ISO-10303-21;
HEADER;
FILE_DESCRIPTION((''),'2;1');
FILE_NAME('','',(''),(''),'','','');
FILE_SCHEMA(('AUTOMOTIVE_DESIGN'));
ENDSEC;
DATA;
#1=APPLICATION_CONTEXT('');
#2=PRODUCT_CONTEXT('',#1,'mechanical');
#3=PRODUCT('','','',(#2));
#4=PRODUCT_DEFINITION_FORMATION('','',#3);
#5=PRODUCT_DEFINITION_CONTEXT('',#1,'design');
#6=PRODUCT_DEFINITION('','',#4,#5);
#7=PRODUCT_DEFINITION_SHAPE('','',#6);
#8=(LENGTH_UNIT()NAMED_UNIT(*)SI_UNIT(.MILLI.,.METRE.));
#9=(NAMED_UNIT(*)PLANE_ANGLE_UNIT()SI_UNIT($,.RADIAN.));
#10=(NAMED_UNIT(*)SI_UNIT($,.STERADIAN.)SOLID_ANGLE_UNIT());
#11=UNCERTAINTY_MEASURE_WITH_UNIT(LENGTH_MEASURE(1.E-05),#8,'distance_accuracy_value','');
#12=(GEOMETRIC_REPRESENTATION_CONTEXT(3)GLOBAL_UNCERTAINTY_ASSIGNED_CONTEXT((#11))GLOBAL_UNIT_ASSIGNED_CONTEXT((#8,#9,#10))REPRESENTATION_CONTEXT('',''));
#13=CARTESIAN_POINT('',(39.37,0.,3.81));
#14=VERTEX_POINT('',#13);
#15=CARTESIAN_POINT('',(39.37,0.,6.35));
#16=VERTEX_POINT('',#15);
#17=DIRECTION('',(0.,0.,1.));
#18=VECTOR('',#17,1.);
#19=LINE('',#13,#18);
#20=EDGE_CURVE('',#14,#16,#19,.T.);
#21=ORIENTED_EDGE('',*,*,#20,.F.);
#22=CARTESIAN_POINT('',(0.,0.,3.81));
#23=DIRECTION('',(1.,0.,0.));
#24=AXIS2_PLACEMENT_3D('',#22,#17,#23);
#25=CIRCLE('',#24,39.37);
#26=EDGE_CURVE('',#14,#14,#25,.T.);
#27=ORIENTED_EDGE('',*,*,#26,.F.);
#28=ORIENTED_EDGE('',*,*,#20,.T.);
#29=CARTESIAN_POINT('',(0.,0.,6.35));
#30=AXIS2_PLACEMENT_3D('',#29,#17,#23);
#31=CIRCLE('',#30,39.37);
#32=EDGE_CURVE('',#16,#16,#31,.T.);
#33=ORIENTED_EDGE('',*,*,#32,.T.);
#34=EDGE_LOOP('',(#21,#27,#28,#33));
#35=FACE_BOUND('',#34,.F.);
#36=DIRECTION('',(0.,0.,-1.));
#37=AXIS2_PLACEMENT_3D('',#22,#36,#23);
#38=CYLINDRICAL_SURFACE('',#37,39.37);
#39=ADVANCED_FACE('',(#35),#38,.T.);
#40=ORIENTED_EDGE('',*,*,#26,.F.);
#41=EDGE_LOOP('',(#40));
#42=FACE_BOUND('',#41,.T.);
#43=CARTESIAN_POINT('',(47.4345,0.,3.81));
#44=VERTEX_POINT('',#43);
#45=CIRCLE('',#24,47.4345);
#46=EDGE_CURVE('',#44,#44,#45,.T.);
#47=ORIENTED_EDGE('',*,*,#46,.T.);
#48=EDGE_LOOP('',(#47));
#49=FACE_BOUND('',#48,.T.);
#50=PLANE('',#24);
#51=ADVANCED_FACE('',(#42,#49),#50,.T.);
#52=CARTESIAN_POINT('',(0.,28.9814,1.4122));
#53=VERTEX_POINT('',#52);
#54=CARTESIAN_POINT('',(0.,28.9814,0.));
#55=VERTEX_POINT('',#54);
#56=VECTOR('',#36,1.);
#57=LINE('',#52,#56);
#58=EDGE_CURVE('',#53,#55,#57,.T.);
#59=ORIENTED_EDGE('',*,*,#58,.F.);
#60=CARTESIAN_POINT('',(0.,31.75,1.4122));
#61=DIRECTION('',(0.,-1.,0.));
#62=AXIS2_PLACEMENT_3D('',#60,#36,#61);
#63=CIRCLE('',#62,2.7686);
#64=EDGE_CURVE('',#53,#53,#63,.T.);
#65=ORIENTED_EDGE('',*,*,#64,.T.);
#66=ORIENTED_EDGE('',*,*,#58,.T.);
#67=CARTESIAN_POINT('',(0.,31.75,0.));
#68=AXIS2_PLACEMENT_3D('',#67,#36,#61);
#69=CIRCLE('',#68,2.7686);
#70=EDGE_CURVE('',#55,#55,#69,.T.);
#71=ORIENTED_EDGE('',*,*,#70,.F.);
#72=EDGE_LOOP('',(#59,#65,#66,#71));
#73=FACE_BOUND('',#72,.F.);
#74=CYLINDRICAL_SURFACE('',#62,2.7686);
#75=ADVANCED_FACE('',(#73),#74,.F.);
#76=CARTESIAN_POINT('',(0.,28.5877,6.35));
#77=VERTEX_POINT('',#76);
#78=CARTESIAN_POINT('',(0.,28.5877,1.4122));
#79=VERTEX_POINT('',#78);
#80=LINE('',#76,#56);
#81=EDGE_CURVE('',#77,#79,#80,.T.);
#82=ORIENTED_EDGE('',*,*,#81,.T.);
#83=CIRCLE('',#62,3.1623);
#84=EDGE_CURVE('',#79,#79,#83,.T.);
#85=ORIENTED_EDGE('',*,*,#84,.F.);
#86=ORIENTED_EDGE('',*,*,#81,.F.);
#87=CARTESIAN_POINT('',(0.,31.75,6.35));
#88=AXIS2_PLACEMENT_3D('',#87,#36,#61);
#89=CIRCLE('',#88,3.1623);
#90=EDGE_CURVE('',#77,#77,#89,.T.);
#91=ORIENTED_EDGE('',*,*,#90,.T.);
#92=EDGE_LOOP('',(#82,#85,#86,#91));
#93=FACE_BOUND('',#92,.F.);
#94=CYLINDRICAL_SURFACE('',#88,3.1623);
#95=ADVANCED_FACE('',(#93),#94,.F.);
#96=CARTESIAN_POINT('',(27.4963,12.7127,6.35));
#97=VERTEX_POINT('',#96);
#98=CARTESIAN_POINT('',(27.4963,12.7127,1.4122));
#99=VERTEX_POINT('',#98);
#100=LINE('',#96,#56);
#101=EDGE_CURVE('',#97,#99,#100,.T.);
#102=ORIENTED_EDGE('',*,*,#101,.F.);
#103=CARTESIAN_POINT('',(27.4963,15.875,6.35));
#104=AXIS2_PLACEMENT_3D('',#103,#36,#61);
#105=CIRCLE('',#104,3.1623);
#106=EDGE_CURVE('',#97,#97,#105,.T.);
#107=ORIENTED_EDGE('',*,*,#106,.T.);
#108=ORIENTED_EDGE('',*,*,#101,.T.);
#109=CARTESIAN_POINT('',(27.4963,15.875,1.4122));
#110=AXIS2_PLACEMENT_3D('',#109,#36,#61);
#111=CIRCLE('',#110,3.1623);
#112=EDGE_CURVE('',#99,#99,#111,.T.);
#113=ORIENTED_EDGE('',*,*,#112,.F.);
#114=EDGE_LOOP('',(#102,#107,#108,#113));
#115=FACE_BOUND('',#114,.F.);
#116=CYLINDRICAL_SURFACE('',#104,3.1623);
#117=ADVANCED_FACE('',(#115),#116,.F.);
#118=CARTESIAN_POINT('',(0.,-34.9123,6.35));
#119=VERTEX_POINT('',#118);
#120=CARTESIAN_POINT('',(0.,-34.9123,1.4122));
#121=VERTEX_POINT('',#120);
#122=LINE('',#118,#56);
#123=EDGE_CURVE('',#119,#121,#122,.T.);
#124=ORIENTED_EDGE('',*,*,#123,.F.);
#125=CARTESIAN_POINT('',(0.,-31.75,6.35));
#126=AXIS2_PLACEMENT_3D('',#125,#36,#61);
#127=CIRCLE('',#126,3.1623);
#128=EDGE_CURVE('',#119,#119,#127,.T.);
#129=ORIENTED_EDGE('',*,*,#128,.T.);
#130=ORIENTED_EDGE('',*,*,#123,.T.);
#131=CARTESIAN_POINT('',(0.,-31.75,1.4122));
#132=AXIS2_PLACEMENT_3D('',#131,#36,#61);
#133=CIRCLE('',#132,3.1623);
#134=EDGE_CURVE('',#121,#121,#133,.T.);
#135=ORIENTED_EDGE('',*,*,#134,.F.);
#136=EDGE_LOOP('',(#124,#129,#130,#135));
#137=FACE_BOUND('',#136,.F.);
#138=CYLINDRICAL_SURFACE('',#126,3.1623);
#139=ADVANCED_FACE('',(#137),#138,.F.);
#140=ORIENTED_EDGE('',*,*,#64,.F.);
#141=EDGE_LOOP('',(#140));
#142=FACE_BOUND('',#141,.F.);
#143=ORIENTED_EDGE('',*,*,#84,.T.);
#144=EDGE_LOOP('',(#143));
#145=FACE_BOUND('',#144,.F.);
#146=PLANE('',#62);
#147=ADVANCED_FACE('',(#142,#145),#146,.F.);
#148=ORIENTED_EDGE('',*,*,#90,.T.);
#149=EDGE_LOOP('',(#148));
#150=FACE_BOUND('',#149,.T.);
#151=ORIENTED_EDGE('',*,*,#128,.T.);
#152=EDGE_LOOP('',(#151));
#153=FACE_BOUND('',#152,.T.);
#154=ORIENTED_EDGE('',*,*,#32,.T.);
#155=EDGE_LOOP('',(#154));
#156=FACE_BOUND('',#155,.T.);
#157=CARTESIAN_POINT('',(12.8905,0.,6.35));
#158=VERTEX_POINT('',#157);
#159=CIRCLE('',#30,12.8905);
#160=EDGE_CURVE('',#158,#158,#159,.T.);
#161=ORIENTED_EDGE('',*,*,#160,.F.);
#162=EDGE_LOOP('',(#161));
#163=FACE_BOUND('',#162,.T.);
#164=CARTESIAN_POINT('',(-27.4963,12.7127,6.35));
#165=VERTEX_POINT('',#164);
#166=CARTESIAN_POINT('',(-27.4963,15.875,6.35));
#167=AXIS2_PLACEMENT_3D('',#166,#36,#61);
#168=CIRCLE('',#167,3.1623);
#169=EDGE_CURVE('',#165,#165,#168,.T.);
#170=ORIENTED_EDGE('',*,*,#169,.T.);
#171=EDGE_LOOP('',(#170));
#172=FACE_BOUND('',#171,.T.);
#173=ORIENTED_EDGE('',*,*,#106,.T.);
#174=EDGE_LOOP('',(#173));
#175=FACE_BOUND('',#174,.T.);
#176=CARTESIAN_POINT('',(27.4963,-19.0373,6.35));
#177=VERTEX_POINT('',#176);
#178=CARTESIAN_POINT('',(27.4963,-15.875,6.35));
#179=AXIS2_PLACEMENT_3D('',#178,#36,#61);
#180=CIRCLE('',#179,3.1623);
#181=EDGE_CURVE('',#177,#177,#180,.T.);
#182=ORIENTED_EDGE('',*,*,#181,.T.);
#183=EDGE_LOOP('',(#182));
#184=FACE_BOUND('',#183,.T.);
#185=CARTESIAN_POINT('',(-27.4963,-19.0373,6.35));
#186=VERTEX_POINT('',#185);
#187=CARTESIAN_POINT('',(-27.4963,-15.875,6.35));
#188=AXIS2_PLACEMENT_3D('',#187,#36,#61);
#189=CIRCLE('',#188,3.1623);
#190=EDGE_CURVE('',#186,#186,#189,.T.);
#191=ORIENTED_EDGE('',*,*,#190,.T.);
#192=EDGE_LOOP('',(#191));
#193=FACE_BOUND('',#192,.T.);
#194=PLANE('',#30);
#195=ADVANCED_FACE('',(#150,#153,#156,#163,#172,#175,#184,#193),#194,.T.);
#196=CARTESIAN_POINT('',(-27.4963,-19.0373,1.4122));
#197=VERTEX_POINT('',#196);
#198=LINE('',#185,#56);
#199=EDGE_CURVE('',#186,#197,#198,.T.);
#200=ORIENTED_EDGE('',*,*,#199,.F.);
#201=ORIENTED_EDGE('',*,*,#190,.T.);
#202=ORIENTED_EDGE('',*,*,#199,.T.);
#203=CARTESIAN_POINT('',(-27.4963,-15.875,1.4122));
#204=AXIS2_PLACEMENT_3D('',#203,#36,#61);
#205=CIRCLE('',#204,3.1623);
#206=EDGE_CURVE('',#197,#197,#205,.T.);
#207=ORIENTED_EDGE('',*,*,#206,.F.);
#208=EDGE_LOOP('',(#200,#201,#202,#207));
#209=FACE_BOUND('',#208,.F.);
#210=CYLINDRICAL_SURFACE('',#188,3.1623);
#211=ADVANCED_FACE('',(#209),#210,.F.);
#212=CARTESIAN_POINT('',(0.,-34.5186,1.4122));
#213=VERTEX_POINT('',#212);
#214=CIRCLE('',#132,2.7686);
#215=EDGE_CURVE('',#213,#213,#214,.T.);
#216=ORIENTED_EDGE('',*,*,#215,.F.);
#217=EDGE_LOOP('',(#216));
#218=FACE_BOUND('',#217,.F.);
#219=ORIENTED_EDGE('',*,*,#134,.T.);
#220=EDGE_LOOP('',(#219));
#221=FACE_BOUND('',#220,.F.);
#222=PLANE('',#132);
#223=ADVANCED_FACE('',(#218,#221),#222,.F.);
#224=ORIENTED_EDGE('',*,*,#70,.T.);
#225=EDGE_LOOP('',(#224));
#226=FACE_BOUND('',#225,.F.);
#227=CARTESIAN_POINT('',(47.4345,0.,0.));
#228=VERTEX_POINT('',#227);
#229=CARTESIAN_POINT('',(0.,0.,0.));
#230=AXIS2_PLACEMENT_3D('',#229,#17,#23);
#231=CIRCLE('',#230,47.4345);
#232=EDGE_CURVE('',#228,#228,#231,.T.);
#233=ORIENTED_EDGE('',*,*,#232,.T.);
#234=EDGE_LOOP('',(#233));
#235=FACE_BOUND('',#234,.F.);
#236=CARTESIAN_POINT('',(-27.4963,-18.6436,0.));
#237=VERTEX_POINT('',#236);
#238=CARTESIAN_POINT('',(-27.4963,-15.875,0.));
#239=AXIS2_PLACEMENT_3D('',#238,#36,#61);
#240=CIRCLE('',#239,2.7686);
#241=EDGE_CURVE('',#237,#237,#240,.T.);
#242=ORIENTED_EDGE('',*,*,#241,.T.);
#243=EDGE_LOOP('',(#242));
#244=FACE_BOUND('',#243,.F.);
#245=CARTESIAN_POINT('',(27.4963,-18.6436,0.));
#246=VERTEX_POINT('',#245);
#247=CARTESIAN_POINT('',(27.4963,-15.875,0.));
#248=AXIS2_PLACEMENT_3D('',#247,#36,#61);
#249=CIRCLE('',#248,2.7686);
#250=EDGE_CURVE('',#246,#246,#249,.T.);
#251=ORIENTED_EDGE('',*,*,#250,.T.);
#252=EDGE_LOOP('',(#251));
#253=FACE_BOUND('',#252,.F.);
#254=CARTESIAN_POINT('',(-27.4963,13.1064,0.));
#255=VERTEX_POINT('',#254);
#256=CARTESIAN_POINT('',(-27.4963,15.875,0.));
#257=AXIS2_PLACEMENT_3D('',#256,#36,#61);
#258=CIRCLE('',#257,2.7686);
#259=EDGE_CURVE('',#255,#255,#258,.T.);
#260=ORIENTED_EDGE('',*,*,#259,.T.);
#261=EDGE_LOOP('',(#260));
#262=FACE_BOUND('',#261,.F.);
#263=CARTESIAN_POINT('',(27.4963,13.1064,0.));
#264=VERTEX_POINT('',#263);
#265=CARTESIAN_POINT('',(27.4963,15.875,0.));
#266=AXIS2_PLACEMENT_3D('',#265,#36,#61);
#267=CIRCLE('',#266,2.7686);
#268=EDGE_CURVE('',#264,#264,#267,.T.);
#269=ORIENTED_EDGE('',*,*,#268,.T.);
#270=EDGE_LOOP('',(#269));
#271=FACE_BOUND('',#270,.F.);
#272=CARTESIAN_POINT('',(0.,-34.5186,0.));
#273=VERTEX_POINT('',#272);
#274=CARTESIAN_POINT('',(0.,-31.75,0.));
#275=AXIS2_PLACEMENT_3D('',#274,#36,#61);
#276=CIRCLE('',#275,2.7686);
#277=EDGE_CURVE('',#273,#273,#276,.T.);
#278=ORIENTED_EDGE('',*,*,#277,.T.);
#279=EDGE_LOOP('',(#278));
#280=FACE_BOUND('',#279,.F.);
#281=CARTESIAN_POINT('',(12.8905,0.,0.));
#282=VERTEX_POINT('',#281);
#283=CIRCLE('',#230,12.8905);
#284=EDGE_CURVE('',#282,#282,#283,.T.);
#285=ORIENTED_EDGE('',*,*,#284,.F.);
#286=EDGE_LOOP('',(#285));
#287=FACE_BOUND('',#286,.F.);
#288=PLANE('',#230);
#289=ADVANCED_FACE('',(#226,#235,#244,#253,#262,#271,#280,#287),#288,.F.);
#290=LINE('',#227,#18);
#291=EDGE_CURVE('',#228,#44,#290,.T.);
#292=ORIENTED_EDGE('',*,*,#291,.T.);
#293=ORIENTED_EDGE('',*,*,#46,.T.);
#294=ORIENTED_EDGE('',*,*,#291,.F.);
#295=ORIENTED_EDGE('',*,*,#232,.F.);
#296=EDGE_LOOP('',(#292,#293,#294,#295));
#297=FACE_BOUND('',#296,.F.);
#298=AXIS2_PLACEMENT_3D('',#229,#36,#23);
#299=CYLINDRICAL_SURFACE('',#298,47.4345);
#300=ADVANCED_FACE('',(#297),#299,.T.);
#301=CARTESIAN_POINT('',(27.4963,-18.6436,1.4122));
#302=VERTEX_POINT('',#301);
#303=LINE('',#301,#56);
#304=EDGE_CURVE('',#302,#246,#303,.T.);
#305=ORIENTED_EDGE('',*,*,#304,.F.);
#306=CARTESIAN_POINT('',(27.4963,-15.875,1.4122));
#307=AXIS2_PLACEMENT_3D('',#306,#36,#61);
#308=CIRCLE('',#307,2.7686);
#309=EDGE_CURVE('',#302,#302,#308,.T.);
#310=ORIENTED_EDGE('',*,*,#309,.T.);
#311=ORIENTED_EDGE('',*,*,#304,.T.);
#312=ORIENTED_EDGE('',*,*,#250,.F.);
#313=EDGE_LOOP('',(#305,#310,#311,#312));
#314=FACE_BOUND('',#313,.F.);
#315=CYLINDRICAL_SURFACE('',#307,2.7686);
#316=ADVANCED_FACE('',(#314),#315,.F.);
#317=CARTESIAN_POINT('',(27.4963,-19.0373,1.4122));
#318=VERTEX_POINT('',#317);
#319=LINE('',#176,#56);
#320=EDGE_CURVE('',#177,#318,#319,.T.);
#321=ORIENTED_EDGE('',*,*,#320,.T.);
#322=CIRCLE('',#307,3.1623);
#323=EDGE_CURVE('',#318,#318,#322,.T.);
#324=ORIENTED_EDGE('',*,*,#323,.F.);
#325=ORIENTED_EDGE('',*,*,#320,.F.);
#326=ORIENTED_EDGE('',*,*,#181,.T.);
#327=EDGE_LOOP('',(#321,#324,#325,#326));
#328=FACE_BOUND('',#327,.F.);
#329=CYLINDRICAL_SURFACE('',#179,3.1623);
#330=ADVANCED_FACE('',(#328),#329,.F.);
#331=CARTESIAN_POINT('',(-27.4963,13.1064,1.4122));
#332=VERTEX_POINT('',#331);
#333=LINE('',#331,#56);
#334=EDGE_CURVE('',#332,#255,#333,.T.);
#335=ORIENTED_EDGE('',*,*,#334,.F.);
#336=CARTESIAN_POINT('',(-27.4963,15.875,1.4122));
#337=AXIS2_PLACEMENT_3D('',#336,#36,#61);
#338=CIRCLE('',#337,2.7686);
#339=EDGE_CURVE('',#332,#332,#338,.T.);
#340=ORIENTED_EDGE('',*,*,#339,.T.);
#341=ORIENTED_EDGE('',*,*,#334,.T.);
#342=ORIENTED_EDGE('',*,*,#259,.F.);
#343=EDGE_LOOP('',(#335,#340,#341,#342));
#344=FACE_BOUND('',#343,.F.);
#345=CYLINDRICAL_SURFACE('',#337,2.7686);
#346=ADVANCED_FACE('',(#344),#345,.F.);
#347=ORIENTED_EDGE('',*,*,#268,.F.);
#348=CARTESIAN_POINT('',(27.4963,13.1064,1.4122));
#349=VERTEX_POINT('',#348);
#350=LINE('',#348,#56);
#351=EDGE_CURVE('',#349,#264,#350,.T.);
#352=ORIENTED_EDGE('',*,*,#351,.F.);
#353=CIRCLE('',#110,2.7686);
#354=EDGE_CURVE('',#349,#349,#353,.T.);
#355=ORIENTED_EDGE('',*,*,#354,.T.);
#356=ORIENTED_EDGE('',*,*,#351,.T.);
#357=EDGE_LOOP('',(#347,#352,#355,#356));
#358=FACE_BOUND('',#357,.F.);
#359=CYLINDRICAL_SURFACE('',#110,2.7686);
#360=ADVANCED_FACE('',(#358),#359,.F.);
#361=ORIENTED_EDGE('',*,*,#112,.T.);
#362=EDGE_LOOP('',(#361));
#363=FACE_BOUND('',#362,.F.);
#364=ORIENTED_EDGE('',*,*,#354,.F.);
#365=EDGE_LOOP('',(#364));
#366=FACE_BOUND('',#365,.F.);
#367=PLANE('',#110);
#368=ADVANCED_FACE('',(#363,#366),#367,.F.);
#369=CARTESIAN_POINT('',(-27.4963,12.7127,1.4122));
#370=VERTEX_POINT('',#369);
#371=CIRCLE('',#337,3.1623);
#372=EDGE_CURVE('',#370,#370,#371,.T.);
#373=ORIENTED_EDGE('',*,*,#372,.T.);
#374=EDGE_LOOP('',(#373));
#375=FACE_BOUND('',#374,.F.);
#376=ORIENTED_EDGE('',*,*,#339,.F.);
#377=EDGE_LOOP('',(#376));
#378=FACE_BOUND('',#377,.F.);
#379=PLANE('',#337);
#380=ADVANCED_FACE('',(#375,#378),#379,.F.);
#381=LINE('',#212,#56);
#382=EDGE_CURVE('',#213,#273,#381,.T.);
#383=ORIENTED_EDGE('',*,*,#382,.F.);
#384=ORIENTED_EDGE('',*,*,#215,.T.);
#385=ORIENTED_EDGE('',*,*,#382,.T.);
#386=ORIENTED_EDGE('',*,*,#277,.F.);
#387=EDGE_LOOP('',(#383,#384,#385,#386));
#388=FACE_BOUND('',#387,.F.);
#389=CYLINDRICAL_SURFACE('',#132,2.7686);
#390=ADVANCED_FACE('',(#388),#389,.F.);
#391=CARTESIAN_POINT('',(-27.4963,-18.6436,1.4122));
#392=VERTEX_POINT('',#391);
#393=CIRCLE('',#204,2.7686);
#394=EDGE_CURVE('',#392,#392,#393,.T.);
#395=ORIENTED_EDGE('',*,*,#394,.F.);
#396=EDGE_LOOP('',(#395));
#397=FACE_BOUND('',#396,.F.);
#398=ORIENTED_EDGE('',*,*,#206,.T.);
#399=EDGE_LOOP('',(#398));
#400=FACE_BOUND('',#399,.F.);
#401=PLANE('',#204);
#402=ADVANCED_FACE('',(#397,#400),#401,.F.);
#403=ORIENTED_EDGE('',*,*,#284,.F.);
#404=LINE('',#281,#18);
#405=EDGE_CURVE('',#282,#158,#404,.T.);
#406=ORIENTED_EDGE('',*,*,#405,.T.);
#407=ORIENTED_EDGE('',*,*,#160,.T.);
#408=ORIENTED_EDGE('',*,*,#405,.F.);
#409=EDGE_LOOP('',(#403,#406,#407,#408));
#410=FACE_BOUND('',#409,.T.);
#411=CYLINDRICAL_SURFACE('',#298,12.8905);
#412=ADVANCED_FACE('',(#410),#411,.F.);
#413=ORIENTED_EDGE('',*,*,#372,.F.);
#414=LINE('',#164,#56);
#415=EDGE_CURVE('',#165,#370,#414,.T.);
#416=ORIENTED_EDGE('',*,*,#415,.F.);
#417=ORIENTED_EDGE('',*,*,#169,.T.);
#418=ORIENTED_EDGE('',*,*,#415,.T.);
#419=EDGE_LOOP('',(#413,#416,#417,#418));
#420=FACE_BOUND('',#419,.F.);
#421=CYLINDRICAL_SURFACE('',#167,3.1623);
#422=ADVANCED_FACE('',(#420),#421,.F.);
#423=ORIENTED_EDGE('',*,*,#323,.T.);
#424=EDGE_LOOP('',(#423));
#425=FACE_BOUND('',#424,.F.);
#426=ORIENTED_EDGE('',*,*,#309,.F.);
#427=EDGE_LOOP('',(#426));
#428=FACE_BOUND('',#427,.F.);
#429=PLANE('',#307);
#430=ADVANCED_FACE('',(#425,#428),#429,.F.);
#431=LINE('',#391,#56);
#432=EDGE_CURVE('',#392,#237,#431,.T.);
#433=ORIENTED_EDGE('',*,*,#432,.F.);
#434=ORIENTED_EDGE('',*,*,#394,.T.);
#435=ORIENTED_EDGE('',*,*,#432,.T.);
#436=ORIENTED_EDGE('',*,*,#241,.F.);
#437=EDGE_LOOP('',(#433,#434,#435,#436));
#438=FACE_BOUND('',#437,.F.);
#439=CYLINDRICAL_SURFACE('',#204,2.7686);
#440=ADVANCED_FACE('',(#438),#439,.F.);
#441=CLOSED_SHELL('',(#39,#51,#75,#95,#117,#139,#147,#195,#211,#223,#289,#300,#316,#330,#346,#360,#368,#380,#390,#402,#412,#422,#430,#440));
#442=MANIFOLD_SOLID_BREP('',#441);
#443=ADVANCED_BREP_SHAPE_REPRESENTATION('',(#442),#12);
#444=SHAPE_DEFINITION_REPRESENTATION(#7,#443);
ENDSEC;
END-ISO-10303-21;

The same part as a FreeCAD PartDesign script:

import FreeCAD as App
import Part
import Sketcher
from FreeCAD import Vector
Q = App.Units.Quantity

doc = App.newDocument("Part")
body = doc.addObject("PartDesign::Body", "Body")

sketch1 = body.newObject("Sketcher::SketchObject", "Sketch")
sketch1.AttachmentSupport = (doc.getObject("XY_Plane"), [""])
sketch1.MapMode = "FlatFace"
sketch1.addGeometry([
    Part.Circle(Vector(0, 0, 0), Vector(0, 0, 1), 47),
    Part.Circle(Vector(0, 0, 0), Vector(0, 0, 1), 13),
], False)
sketch1.addConstraint([
    Sketcher.Constraint("Coincident", 0, 3, -1, 1),
    Sketcher.Constraint("Coincident", 1, 3, -1, 1),
    Sketcher.Constraint("Diameter", 0, Q("3.735 in")),
    Sketcher.Constraint("Diameter", 1, Q("1.015 in")),
])
pad1 = body.newObject("PartDesign::Pad", "Pad")
pad1.Profile = sketch1
pad1.Length = Q("0.15 in")

sketch2 = body.newObject("Sketcher::SketchObject", "Sketch001")
sketch2.AttachmentSupport = (doc.getObject("XY_Plane"), [""])
sketch2.MapMode = "FlatFace"
sketch2.AttachmentOffset = App.Placement(Vector(0, 0, 0.15 * 25.4), App.Rotation())
sketch2.addGeometry([
    Part.Circle(Vector(0, 0, 0), Vector(0, 0, 1), 39),
    Part.Circle(Vector(0, 0, 0), Vector(0, 0, 1), 13),
], False)
sketch2.addConstraint([
    Sketcher.Constraint("Coincident", 0, 3, -1, 1),
    Sketcher.Constraint("Coincident", 1, 3, -1, 1),
    Sketcher.Constraint("Diameter", 0, Q("3.1 in")),
    Sketcher.Constraint("Diameter", 1, Q("1.015 in")),
])
pad2 = body.newObject("PartDesign::Pad", "Pad001")
pad2.Profile = sketch2
pad2.Length = Q("0.1 in")

sketch3 = body.newObject("Sketcher::SketchObject", "Sketch002")
sketch3.AttachmentSupport = (doc.getObject("XY_Plane"), [""])
sketch3.MapMode = "FlatFace"
sketch3.AttachmentOffset = App.Placement(Vector(0, 0, 0.25 * 25.4), App.Rotation())
sketch3.addGeometry([
    Part.Circle(Vector(0, 31.8, 0), Vector(0, 0, 1), 2.8),
    Part.Circle(Vector(-27.5, 15.9, 0), Vector(0, 0, 1), 2.8),
    Part.Circle(Vector(-27.5, -15.9, 0), Vector(0, 0, 1), 2.8),
    Part.Circle(Vector(0, -31.8, 0), Vector(0, 0, 1), 2.8),
    Part.Circle(Vector(27.5, -15.9, 0), Vector(0, 0, 1), 2.8),
    Part.Circle(Vector(27.5, 15.9, 0), Vector(0, 0, 1), 2.8),
], False)
sketch3.addConstraint([
    Sketcher.Constraint("Equal", 0, 1),
    Sketcher.Constraint("Equal", 1, 2),
    Sketcher.Constraint("Equal", 2, 3),
    Sketcher.Constraint("Equal", 3, 4),
    Sketcher.Constraint("Equal", 4, 5),
    Sketcher.Constraint("Symmetric", 0, 3, 3, 3, -1, 1),
    Sketcher.Constraint("Symmetric", 1, 3, 4, 3, -1, 1),
    Sketcher.Constraint("Symmetric", 2, 3, 5, 3, -1, 1),
    Sketcher.Constraint("Symmetric", 2, 3, 4, 3, -2),
    Sketcher.Constraint("PointOnObject", 0, 3, -2),
    Sketcher.Constraint("Diameter", 0, Q("0.218 in")),
    Sketcher.Constraint("DistanceY", 3, 3, 0, 3, Q("2.5 in")),
    Sketcher.Constraint("DistanceY", 2, 3, 1, 3, Q("1.25 in")),
    Sketcher.Constraint("DistanceX", 1, 3, -1, 1, 27.4963),
])
doc.recompute()
hole = body.newObject("PartDesign::Hole", "Hole")
hole.Profile = sketch3
hole.ThreadType = "None"
hole.Diameter = Q("0.218 in")
hole.DepthType = "Dimension"
hole.Depth = Q("0.25 in")
hole.DrillPoint = "Angled"
hole.DrillPointAngle = 118
hole.HoleCutType = "Counterbore"
hole.HoleCutDiameter = Q("0.249 in")
hole.HoleCutDepth = Q("0.1944016 in")

doc.recompute()
